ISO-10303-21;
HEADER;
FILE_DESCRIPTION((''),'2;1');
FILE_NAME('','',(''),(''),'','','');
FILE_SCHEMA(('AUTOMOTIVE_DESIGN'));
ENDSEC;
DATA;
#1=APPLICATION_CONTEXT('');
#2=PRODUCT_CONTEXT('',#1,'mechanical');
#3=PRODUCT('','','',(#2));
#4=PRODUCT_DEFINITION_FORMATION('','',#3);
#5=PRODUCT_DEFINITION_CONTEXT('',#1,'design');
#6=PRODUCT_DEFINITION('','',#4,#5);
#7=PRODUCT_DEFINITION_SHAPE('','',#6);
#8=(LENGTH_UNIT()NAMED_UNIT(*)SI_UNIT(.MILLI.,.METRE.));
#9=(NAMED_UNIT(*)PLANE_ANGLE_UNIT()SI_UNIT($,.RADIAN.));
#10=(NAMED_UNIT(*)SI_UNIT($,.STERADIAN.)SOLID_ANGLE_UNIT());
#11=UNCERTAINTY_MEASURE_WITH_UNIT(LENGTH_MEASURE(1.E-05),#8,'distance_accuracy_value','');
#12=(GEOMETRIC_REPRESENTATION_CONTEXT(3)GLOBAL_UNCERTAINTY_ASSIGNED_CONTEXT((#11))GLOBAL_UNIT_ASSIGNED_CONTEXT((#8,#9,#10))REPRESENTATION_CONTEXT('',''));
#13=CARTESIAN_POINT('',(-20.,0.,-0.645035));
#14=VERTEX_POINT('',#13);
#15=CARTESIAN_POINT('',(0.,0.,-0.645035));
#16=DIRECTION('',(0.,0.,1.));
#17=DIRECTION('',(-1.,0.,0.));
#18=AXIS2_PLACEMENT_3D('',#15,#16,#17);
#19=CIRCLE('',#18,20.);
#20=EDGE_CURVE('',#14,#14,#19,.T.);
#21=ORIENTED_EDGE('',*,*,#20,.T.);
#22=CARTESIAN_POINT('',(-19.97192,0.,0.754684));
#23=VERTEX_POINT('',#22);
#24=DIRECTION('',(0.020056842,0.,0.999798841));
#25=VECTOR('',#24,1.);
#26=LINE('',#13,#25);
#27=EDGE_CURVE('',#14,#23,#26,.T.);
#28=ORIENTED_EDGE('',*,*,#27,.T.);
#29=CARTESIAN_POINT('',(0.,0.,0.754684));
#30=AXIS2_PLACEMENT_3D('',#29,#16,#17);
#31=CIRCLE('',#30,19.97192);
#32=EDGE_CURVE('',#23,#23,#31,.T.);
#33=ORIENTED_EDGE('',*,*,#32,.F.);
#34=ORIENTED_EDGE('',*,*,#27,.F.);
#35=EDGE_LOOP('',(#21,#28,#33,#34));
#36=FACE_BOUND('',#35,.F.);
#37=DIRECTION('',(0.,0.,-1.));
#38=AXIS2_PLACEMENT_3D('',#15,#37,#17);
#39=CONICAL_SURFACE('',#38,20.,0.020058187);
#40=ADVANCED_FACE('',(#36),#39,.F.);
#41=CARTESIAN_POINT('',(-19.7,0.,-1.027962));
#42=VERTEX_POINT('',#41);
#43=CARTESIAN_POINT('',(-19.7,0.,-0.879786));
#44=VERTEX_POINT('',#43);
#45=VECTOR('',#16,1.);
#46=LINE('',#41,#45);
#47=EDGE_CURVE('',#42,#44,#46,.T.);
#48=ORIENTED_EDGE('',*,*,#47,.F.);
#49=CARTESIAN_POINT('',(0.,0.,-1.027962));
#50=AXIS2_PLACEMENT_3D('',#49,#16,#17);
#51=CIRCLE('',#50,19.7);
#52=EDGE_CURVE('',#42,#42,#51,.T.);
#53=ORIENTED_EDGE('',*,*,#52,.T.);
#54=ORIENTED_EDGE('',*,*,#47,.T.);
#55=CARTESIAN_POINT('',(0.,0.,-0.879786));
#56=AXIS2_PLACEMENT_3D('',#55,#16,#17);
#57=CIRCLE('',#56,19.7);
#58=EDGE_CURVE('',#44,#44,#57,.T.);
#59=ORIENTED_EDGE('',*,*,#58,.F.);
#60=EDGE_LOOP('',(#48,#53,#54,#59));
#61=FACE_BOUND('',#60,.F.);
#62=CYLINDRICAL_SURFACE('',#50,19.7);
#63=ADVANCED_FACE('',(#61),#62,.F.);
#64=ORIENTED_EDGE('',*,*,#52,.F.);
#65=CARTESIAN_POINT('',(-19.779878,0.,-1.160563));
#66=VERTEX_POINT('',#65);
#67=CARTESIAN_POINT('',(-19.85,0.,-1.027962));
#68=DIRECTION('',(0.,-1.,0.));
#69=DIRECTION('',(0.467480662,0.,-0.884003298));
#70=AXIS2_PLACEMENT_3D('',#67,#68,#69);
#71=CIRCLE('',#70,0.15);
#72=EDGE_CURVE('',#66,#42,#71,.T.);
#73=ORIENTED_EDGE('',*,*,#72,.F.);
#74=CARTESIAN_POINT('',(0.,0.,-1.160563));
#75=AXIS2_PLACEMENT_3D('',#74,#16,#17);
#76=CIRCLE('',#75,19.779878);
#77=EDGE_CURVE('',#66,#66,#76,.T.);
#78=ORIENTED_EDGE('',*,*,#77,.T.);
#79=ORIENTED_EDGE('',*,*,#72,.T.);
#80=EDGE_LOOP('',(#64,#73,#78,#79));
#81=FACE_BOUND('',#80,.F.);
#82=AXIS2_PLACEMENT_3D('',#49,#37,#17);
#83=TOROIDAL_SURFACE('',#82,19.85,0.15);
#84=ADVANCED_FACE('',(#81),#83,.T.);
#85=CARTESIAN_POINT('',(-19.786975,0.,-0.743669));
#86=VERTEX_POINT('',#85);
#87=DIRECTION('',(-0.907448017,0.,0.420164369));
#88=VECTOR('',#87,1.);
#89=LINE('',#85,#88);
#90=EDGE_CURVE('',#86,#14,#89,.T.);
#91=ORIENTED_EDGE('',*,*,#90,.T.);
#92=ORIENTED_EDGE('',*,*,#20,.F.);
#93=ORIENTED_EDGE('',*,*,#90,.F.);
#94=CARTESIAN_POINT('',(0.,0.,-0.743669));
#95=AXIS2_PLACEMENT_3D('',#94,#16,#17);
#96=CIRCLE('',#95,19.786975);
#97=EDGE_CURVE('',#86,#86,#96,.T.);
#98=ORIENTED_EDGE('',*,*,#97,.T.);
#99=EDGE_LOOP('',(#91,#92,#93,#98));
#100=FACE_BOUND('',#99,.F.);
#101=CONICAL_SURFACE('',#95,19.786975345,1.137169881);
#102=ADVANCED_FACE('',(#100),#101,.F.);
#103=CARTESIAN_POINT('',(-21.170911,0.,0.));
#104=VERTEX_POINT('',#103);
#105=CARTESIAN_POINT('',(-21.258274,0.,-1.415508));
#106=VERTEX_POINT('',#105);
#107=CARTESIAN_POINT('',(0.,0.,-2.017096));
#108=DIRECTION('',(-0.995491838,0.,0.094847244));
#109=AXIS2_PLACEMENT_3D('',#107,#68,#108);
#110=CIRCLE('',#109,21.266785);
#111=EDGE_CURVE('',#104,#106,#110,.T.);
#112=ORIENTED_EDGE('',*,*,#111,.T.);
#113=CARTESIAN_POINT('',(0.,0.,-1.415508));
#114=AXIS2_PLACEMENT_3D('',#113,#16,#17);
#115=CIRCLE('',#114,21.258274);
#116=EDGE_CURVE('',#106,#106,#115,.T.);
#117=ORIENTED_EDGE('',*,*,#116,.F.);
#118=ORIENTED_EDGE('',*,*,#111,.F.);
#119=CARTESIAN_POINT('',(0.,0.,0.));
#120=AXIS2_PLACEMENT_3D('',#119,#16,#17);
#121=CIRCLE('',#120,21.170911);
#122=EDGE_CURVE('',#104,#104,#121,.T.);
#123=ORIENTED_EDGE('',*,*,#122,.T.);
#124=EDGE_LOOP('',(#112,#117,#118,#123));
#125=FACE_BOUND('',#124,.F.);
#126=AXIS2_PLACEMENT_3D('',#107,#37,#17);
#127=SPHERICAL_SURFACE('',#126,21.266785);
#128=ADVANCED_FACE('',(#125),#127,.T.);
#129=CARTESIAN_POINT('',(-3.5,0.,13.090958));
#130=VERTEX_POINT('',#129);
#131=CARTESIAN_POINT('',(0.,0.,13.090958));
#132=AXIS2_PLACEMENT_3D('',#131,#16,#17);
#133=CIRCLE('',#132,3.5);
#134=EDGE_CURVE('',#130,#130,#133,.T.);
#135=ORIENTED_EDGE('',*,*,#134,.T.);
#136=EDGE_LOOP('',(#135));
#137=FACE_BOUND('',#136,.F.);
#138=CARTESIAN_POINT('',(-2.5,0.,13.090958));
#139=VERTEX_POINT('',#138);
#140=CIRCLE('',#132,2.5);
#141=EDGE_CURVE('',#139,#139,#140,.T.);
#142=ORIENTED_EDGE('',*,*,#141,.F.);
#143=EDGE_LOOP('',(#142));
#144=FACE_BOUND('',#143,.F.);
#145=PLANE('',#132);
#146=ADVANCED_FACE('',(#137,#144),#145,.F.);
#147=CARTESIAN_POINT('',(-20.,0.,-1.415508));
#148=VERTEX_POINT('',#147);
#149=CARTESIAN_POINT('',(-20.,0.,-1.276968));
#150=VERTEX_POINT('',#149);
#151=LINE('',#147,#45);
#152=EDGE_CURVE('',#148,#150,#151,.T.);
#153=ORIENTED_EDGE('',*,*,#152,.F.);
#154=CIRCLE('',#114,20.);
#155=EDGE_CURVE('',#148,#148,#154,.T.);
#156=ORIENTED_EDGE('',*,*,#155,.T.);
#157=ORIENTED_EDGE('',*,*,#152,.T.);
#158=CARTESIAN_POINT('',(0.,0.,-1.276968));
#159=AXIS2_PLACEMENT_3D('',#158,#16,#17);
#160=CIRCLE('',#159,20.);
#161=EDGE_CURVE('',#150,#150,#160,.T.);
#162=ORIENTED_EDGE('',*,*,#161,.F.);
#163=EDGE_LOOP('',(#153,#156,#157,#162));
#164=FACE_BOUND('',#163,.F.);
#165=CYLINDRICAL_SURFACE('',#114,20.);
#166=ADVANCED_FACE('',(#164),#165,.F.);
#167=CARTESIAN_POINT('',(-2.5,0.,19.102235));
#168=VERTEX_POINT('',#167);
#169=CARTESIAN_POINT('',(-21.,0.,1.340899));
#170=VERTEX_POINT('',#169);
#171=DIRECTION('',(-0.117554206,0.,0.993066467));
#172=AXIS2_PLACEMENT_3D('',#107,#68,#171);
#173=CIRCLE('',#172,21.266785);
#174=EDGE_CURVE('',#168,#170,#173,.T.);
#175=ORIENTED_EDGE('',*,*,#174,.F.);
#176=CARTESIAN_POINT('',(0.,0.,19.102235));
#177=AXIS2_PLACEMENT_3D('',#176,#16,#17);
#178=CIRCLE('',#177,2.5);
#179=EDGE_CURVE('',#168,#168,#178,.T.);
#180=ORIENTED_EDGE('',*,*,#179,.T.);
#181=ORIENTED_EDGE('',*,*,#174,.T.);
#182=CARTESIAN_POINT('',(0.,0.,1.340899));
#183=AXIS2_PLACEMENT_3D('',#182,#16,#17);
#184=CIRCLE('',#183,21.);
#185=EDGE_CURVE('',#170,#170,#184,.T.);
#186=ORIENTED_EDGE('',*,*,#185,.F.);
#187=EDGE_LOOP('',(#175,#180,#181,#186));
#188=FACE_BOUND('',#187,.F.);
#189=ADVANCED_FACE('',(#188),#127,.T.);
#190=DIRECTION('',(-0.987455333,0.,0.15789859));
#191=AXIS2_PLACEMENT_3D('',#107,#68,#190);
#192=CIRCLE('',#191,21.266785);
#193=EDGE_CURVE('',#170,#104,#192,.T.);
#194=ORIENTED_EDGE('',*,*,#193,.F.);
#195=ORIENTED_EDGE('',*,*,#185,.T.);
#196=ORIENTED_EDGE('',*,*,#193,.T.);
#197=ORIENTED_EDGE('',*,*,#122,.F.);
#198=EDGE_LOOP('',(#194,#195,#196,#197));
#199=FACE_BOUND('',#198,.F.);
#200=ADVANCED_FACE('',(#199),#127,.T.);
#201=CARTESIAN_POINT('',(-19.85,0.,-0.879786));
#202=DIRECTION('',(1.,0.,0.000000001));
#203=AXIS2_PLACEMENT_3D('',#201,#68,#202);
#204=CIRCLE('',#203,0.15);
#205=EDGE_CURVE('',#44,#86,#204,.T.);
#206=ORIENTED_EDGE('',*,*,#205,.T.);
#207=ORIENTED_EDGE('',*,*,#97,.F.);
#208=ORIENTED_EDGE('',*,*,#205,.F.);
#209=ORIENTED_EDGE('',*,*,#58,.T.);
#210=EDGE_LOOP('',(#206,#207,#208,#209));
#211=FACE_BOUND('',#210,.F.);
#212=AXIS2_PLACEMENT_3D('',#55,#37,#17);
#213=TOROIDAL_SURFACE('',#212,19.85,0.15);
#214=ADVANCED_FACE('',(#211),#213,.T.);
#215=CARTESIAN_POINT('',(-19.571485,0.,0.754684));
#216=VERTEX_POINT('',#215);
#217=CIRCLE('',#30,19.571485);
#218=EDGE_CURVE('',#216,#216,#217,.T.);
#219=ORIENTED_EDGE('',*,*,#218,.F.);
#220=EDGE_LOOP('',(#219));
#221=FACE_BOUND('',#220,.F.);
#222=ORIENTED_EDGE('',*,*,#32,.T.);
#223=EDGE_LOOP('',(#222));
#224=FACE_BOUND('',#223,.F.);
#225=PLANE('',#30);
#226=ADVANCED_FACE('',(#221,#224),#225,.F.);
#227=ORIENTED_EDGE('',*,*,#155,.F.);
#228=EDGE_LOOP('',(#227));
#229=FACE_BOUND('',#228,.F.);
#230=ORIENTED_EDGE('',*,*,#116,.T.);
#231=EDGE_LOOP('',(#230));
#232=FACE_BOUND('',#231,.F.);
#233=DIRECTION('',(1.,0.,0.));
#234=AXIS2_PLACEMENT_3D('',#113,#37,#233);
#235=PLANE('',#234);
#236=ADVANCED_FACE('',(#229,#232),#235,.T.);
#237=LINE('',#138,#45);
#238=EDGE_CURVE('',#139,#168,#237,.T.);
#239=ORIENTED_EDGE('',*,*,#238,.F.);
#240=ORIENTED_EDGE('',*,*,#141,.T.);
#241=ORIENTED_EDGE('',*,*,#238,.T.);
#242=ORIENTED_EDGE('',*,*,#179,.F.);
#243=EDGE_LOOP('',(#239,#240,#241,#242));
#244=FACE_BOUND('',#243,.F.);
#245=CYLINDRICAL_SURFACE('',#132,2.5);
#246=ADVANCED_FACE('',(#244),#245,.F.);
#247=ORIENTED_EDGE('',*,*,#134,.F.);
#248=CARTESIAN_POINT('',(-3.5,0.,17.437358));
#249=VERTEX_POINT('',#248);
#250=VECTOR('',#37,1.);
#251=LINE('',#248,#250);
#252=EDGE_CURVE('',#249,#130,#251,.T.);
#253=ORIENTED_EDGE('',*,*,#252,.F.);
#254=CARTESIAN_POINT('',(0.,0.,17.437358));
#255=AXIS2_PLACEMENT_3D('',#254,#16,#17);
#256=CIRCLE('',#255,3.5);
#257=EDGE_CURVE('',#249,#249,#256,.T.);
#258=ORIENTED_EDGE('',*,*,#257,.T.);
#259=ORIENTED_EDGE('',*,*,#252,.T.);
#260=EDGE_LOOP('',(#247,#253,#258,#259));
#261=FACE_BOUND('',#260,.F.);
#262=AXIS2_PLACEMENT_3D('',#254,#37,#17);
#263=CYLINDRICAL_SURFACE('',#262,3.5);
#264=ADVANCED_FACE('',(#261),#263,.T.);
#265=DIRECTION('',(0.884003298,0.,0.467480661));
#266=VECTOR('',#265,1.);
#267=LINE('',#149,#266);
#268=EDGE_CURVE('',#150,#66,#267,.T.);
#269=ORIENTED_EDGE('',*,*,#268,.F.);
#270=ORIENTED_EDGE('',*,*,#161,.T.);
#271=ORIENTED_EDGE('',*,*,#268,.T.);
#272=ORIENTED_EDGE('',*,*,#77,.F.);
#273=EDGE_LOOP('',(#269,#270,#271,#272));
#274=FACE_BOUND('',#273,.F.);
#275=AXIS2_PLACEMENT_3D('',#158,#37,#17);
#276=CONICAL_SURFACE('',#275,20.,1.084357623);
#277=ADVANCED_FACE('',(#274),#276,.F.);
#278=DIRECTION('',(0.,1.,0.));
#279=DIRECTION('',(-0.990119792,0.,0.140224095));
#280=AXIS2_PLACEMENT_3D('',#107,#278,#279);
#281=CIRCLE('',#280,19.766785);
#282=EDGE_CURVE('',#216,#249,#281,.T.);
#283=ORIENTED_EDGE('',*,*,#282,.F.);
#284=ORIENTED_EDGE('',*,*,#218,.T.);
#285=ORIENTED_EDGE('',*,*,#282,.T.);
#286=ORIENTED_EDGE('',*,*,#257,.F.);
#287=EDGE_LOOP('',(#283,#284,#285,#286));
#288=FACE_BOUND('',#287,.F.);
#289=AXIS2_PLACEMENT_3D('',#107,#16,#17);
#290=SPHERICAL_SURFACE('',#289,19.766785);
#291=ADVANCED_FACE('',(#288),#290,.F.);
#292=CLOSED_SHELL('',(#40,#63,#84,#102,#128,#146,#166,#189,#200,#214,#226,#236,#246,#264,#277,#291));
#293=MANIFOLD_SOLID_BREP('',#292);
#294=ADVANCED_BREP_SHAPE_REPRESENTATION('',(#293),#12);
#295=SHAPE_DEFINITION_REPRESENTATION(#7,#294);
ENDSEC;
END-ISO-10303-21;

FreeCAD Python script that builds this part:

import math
import FreeCAD as App
import Part
import Sketcher
from FreeCAD import Vector

doc = App.newDocument("Part")
params = doc.addObject("Spreadsheet::Sheet", "Params")
for row, (alias, value) in enumerate([
    ("sketch1_width", "1 mm"),
    ("sketch1_radius", "0.15 mm"),
    ("sketch1_length", "1.4 mm"),
    ("revolution_angle", "360 deg"),
], start=1):
    params.set(f"A{row}", alias)
    params.set(f"B{row}", "=" + value)
    params.setAlias(f"B{row}", alias)

body = doc.addObject("PartDesign::Body", "Body")

# Sketch on XZ plane
sketch1 = doc.addObject("Sketcher::SketchObject", "Sketch")
body.addObject(sketch1)
sketch1.AttachmentSupport = (doc.XZ_Plane, [""])
sketch1.MapMode = "FlatFace"
sketch1.addGeometry([
    Part.ArcOfCircle(Part.Circle(Vector(0, -2.02, 0), Vector(0, 0, 1), 21.27), math.radians(97), math.radians(171)),  # 0
    Part.ArcOfCircle(Part.Circle(Vector(0, -2.02, 0), Vector(0, 0, 1), 21.27), math.radians(170.92), math.radians(174.56)),  # 1
    Part.ArcOfCircle(Part.Circle(Vector(0, -2.02, 0), Vector(0, 0, 1), 21.27), math.radians(174.56), math.radians(178.38)),  # 2
    Part.LineSegment(Vector(-21.26, -1.42, 0), Vector(-20, -1.42, 0)),  # 3
    Part.LineSegment(Vector(-20, -1.42, 0), Vector(-20, -1.28, 0)),  # 4
    Part.LineSegment(Vector(-20, -1.28, 0), Vector(-19.78, -1.16, 0)),  # 5
    Part.ArcOfCircle(Part.Circle(Vector(-19.85, -1.03, 0), Vector(0, 0, 1), 0.15), math.radians(-62), math.radians(0)),  # 6
    Part.LineSegment(Vector(-19.7, -1.03, 0), Vector(-19.7, -0.88, 0)),  # 7
    Part.ArcOfCircle(Part.Circle(Vector(-19.85, -0.88, 0), Vector(0, 0, 1), 0.15), math.radians(0), math.radians(65)),  # 8
    Part.LineSegment(Vector(-19.79, -0.74, 0), Vector(-20, -0.65, 0)),  # 9
    Part.LineSegment(Vector(-20, -0.65, 0), Vector(-19.97, 0.75, 0)),  # 10
    Part.LineSegment(Vector(-19.97, 0.75, 0), Vector(-19.57, 0.75, 0)),  # 11
    Part.ArcOfCircle(Part.Circle(Vector(0, -2.02, 0), Vector(0, 0, 1), 19.77), math.radians(100), math.radians(172)),  # 12
    Part.LineSegment(Vector(-3.5, 17.44, 0), Vector(-3.5, 13.09, 0)),  # 13
    Part.LineSegment(Vector(-3.5, 13.09, 0), Vector(-2.5, 13.09, 0)),  # 14
    Part.LineSegment(Vector(-2.5, 13.09, 0), Vector(-2.5, 19.1, 0)),  # 15
], False)
sketch1.addConstraint([
    Sketcher.Constraint("Tangent", 0, 2, 1, 1),
    Sketcher.Constraint("Tangent", 1, 2, 2, 1),
    Sketcher.Constraint("Coincident", 2, 2, 3, 1),
    Sketcher.Constraint("Coincident", 3, 2, 4, 1),
    Sketcher.Constraint("Coincident", 4, 2, 5, 1),
    Sketcher.Constraint("Tangent", 5, 2, 6, 1),
    Sketcher.Constraint("Tangent", 6, 2, 7, 1),
    Sketcher.Constraint("Tangent", 7, 2, 8, 1),
    Sketcher.Constraint("Tangent", 8, 2, 9, 1),
    Sketcher.Constraint("Coincident", 9, 2, 10, 1),
    Sketcher.Constraint("Coincident", 10, 2, 11, 1),
    Sketcher.Constraint("Coincident", 11, 2, 12, 2),
    Sketcher.Constraint("Coincident", 12, 1, 13, 1),
    Sketcher.Constraint("Coincident", 13, 2, 14, 1),
    Sketcher.Constraint("Coincident", 14, 2, 15, 1),
    Sketcher.Constraint("Coincident", 15, 2, 0, 1),
    Sketcher.Constraint("Horizontal", 3),
    Sketcher.Constraint("Vertical", 4),
    Sketcher.Constraint("Vertical", 7),
    Sketcher.Constraint("Horizontal", 11),
    Sketcher.Constraint("Vertical", 13),
    Sketcher.Constraint("Horizontal", 14),
    Sketcher.Constraint("Vertical", 15),
    Sketcher.Constraint("Coincident", 2, 3, 0, 3),
    Sketcher.Constraint("Coincident", 12, 3, 0, 3),
    Sketcher.Constraint("Equal", 6, 8),
    Sketcher.Constraint("PointOnObject", 0, 3, -2),
    Sketcher.Constraint("PointOnObject", 1, 2, -1),
    Sketcher.Constraint("Vertical", 4, 2, 9, 2),
    Sketcher.Constraint("DistanceX", 14, 1, 14, 2, 1.0),
    Sketcher.Constraint("Radius", 6, 0.15),
    Sketcher.Constraint("DistanceX", 0, 2, -1, 1, 21.0),
    Sketcher.Constraint("DistanceX", 3, 2, -1, 1, 20.0),
    Sketcher.Constraint("Distance", 10, 1.4),
    Sketcher.Constraint("DistanceX", 6, 2, -1, 1, 19.7),
    Sketcher.Constraint("DistanceX", 12, 1, -1, 1, 3.5),
    Sketcher.Constraint("DistanceY", 13, 2, 13, 1, 4.3464),
    Sketcher.Constraint("Radius", 0, 21.266785),
    Sketcher.Constraint("Radius", 12, 19.766785),
    Sketcher.Constraint("DistanceY", 4, 1, 4, 2, 0.13854),
    Sketcher.Constraint("DistanceY", -1, 1, 0, 2, 1.340899),
    Sketcher.Constraint("DistanceY", 5, 2, 6, 3, 0.1326),
    Sketcher.Constraint("Distance", 9, 0.234751),
    Sketcher.Constraint("DistanceX", 3, 1, 3, 2, 1.258274),
    Sketcher.Constraint("DistanceX", 11, 1, 11, 2, 0.400436),
    Sketcher.Constraint("DistanceY", 7, 1, 7, 2, 0.148176),
])
sketch1.setExpression("Constraints[29]", "Params.sketch1_width")
sketch1.setExpression("Constraints[30]", "Params.sketch1_radius")
sketch1.setExpression("Constraints[33]", "Params.sketch1_length")
revolution = doc.addObject("PartDesign::Revolution", "Revolution")
body.addObject(revolution)
revolution.Profile = sketch1
revolution.ReferenceAxis = (sketch1, ["V_Axis"])
revolution.setExpression("Angle", "Params.revolution_angle")

doc.recompute()
